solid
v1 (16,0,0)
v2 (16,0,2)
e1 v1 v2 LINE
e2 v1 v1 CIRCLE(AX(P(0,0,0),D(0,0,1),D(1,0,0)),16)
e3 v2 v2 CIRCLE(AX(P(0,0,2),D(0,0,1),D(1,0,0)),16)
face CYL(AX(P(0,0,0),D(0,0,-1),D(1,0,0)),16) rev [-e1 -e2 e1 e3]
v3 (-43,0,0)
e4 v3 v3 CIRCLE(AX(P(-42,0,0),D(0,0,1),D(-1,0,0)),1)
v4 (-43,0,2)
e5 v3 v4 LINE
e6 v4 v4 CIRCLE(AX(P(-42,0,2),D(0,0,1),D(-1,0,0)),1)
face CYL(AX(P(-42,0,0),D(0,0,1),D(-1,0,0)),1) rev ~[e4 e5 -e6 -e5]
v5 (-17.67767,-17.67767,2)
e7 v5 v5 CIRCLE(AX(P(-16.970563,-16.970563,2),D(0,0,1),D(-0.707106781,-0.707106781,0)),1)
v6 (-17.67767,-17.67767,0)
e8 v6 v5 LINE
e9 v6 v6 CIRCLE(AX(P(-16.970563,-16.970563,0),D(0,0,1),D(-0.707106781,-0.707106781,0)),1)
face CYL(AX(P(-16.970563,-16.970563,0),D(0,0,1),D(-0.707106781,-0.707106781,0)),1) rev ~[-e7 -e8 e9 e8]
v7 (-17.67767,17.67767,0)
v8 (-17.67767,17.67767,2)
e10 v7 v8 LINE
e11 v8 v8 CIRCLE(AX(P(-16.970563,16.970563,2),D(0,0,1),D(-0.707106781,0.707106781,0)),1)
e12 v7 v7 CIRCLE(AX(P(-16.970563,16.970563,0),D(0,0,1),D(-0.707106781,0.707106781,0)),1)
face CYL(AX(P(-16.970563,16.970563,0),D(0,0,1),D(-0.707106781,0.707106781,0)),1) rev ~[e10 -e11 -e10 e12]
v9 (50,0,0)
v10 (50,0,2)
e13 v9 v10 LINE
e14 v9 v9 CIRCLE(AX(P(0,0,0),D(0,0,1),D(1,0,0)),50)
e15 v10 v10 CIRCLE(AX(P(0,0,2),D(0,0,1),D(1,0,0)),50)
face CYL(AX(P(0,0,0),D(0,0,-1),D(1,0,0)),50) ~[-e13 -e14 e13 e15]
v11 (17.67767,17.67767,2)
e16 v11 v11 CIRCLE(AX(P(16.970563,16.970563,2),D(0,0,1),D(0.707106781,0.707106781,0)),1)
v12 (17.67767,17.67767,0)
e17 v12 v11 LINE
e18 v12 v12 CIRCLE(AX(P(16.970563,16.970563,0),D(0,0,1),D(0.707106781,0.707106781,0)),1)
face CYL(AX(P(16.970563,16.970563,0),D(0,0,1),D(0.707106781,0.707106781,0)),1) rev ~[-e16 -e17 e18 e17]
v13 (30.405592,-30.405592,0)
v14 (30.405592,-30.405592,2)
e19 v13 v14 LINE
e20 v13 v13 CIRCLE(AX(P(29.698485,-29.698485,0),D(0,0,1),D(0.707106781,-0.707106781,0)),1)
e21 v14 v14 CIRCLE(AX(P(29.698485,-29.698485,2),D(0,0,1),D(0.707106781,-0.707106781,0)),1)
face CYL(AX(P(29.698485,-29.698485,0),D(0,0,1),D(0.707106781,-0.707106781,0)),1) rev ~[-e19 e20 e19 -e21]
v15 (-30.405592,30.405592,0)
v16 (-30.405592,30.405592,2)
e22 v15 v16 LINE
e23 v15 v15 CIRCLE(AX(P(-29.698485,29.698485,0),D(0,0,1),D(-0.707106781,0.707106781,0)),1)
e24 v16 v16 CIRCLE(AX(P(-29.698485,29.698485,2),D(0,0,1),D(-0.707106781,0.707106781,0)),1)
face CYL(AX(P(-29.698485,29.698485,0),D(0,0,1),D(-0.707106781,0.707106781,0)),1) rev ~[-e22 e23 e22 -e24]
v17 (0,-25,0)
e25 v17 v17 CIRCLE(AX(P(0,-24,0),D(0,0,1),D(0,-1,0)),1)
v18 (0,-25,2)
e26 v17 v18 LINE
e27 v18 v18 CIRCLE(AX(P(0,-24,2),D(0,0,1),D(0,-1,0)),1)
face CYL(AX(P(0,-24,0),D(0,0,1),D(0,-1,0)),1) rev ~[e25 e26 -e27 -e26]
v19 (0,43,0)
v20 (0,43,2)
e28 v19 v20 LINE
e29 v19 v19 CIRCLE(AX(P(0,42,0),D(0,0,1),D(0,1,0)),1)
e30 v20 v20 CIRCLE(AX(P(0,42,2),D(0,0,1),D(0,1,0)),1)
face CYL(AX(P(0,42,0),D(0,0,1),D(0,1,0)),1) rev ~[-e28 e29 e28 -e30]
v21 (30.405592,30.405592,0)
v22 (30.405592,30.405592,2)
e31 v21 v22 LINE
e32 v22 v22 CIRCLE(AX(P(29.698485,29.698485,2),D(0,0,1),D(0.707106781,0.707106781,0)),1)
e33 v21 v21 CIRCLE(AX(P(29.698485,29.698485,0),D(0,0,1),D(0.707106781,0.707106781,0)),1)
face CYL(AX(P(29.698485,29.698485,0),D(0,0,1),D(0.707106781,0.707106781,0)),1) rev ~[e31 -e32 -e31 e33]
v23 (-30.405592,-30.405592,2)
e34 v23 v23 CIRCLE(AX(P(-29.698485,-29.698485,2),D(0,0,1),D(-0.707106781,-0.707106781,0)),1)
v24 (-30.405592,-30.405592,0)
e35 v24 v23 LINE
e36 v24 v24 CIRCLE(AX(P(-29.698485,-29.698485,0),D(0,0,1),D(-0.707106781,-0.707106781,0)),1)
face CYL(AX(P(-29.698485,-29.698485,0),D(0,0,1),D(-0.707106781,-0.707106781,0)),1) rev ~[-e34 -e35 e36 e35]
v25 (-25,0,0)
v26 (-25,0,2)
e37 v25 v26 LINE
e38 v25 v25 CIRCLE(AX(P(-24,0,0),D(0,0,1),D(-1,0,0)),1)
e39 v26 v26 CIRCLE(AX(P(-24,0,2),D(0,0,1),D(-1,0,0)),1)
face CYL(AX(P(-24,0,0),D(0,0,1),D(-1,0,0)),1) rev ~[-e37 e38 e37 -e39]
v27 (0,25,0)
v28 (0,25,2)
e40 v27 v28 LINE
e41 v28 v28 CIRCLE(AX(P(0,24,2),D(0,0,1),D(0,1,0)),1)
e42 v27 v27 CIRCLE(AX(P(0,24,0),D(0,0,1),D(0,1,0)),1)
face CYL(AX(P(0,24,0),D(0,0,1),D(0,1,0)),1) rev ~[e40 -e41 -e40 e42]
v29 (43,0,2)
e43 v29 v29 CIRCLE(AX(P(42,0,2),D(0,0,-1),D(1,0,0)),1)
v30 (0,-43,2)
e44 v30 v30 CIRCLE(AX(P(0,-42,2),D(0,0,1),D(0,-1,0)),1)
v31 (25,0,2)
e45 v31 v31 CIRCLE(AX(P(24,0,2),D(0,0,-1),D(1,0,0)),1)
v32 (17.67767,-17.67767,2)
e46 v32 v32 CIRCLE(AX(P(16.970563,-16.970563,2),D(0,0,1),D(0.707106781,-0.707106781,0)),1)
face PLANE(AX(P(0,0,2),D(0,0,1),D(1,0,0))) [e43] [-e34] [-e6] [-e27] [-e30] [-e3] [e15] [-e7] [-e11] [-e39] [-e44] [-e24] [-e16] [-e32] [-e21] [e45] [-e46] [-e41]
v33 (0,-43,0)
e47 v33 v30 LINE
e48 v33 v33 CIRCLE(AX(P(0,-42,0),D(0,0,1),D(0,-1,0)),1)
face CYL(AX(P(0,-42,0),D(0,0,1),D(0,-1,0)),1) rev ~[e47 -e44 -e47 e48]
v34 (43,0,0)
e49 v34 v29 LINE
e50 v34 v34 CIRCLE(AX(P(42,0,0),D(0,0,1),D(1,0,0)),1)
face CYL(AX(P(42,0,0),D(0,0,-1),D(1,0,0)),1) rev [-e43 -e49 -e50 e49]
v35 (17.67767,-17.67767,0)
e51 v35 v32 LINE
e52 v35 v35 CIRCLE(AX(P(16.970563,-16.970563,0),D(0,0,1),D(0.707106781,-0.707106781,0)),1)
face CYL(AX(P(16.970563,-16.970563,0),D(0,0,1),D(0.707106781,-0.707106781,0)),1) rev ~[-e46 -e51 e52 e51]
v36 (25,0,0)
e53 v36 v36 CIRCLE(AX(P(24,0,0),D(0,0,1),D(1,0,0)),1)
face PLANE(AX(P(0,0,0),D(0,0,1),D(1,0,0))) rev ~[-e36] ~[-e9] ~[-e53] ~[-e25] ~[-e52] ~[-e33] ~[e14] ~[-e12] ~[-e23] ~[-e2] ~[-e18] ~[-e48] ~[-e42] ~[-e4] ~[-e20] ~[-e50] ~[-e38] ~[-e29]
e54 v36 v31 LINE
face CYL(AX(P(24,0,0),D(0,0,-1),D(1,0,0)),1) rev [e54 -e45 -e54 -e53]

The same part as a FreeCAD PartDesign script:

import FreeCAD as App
import Part
import Sketcher
from FreeCAD import Vector
Q = App.Units.Quantity

doc = App.newDocument("Part")
params = doc.addObject("Spreadsheet::Sheet", "Params")
for row, (alias, value) in enumerate([
    ("sketch1_diameter", "100 mm"),
    ("sketch1_diameter2", "32 mm"),
    ("pad1_length", "2 mm"),
    ("sketch2_diameter", "2 mm"),
], start=1):
    params.set(f"A{row}", alias)
    params.set(f"B{row}", "=" + value)
    params.setAlias(f"B{row}", alias)

body = doc.addObject("PartDesign::Body", "Body")

# Sketch on XY plane
sketch1 = doc.addObject("Sketcher::SketchObject", "Sketch")
body.addObject(sketch1)
sketch1.AttachmentSupport = (doc.XY_Plane, [""])
sketch1.MapMode = "FlatFace"
sketch1.addGeometry([
    Part.Circle(Vector(0, 0, 0), Vector(0, 0, 1), 50),
    Part.Circle(Vector(0, 0, 0), Vector(0, 0, 1), 16),
], False)
sketch1.addConstraint([
    Sketcher.Constraint("Coincident", 0, 3, -1, 1),
    Sketcher.Constraint("Coincident", 1, 3, -1, 1),
    Sketcher.Constraint("Diameter", 0, Q("100 mm")),
    Sketcher.Constraint("Diameter", 1, Q("32 mm")),
])
sketch1.setExpression("Constraints[2]", "Params.sketch1_diameter")
sketch1.setExpression("Constraints[3]", "Params.sketch1_diameter2")
pad1 = doc.addObject("PartDesign::Pad", "Pad")
body.addObject(pad1)
pad1.Profile = sketch1
pad1.setExpression("Length", "Params.pad1_length")

# Sketch on XY plane
sketch2 = doc.addObject("Sketcher::SketchObject", "Sketch001")
body.addObject(sketch2)
sketch2.AttachmentSupport = (doc.XY_Plane, [""])
sketch2.MapMode = "FlatFace"
sketch2.addGeometry([
    Part.Circle(Vector(24, 0, 0), Vector(0, 0, 1), 1),
    Part.Circle(Vector(42, 0, 0), Vector(0, 0, 1), 1),
], False)
sketch2.addConstraint([
    Sketcher.Constraint("Equal", 0, 1),
    Sketcher.Constraint("PointOnObject", 0, 3, -1),
    Sketcher.Constraint("PointOnObject", 1, 3, -1),
    Sketcher.Constraint("Diameter", 0, Q("2 mm")),
    Sketcher.Constraint("DistanceX", -1, 1, 0, 3, Q("24 mm")),
    Sketcher.Constraint("DistanceX", -1, 1, 1, 3, Q("42 mm")),
])
sketch2.setExpression("Constraints[3]", "Params.sketch2_diameter")
pocket1 = doc.addObject("PartDesign::Pocket", "Pocket")
body.addObject(pocket1)
pocket1.Profile = sketch2
pocket1.Type = "ThroughAll"
pocket1.Midplane = True
doc.recompute()

polarpattern = doc.addObject("PartDesign::PolarPattern", "PolarPattern")
body.addObject(polarpattern)
polarpattern.Originals = [pocket1]
polarpattern.Axis = (doc.Z_Axis, [""])
polarpattern.Angle = 360
polarpattern.Occurrences = 8
body.Tip = polarpattern

doc.recompute()
